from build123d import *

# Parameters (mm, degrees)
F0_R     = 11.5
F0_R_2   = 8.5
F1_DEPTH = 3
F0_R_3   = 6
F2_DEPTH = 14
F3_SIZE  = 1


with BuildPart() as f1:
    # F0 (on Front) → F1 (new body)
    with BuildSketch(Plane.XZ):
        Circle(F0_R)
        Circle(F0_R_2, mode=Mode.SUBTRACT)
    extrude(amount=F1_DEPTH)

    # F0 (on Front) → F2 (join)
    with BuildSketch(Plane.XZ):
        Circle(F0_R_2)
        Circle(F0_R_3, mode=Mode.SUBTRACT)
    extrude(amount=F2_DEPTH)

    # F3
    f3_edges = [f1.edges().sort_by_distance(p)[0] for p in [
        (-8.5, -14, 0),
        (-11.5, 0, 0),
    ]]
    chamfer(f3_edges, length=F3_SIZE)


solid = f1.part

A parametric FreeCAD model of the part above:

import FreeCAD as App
import Part
import Sketcher
from FreeCAD import Vector
Q = App.Units.Quantity


def edges_at(feature, points):
    """Names of the edges that pass closest to the given points."""
    edges = feature.Shape.Edges
    near = lambda p: min(range(len(edges)), key=lambda i: edges[i].distToShape(Part.Vertex(*p))[0])
    return sorted({f"Edge{near(p) + 1}" for p in points})

doc = App.newDocument("Part")
body = doc.addObject("PartDesign::Body", "Body")

sketch1 = body.newObject("Sketcher::SketchObject", "Sketch")
sketch1.AttachmentSupport = (doc.getObject("XZ_Plane"), [""])
sketch1.MapMode = "FlatFace"
sketch1.addGeometry([
    Part.Circle(Vector(0, 0, 0), Vector(0, 0, 1), 11.5),
    Part.Circle(Vector(0, 0, 0), Vector(0, 0, 1), 8.5),
], False)
sketch1.addConstraint([
    Sketcher.Constraint("Coincident", 0, 3, -1, 1),
    Sketcher.Constraint("Coincident", 1, 3, -1, 1),
    Sketcher.Constraint("Diameter", 0, Q("23 mm")),
    Sketcher.Constraint("Diameter", 1, Q("17 mm")),
])
pad1 = body.newObject("PartDesign::Pad", "Pad")
pad1.Profile = sketch1
pad1.Length = 3

sketch2 = body.newObject("Sketcher::SketchObject", "Sketch001")
sketch2.AttachmentSupport = (doc.getObject("XZ_Plane"), [""])
sketch2.MapMode = "FlatFace"
sketch2.addGeometry([
    Part.Circle(Vector(0, 0, 0), Vector(0, 0, 1), 8.5),
    Part.Circle(Vector(0, 0, 0), Vector(0, 0, 1), 6),
], False)
sketch2.addConstraint([
    Sketcher.Constraint("Coincident", 0, 3, -1, 1),
    Sketcher.Constraint("Coincident", 1, 3, -1, 1),
    Sketcher.Constraint("Diameter", 0, Q("17 mm")),
    Sketcher.Constraint("Diameter", 1, Q("12 mm")),
])
pad2 = body.newObject("PartDesign::Pad", "Pad001")
pad2.Profile = sketch2
pad2.Length = 14
doc.recompute()

chamfer = body.newObject("PartDesign::Chamfer", "Chamfer")
chamfer.Base = (pad2, edges_at(pad2, [(-8.5, -14, 0), (-11.5, 0, 0)]))
chamfer.Size = 1

doc.recompute()
